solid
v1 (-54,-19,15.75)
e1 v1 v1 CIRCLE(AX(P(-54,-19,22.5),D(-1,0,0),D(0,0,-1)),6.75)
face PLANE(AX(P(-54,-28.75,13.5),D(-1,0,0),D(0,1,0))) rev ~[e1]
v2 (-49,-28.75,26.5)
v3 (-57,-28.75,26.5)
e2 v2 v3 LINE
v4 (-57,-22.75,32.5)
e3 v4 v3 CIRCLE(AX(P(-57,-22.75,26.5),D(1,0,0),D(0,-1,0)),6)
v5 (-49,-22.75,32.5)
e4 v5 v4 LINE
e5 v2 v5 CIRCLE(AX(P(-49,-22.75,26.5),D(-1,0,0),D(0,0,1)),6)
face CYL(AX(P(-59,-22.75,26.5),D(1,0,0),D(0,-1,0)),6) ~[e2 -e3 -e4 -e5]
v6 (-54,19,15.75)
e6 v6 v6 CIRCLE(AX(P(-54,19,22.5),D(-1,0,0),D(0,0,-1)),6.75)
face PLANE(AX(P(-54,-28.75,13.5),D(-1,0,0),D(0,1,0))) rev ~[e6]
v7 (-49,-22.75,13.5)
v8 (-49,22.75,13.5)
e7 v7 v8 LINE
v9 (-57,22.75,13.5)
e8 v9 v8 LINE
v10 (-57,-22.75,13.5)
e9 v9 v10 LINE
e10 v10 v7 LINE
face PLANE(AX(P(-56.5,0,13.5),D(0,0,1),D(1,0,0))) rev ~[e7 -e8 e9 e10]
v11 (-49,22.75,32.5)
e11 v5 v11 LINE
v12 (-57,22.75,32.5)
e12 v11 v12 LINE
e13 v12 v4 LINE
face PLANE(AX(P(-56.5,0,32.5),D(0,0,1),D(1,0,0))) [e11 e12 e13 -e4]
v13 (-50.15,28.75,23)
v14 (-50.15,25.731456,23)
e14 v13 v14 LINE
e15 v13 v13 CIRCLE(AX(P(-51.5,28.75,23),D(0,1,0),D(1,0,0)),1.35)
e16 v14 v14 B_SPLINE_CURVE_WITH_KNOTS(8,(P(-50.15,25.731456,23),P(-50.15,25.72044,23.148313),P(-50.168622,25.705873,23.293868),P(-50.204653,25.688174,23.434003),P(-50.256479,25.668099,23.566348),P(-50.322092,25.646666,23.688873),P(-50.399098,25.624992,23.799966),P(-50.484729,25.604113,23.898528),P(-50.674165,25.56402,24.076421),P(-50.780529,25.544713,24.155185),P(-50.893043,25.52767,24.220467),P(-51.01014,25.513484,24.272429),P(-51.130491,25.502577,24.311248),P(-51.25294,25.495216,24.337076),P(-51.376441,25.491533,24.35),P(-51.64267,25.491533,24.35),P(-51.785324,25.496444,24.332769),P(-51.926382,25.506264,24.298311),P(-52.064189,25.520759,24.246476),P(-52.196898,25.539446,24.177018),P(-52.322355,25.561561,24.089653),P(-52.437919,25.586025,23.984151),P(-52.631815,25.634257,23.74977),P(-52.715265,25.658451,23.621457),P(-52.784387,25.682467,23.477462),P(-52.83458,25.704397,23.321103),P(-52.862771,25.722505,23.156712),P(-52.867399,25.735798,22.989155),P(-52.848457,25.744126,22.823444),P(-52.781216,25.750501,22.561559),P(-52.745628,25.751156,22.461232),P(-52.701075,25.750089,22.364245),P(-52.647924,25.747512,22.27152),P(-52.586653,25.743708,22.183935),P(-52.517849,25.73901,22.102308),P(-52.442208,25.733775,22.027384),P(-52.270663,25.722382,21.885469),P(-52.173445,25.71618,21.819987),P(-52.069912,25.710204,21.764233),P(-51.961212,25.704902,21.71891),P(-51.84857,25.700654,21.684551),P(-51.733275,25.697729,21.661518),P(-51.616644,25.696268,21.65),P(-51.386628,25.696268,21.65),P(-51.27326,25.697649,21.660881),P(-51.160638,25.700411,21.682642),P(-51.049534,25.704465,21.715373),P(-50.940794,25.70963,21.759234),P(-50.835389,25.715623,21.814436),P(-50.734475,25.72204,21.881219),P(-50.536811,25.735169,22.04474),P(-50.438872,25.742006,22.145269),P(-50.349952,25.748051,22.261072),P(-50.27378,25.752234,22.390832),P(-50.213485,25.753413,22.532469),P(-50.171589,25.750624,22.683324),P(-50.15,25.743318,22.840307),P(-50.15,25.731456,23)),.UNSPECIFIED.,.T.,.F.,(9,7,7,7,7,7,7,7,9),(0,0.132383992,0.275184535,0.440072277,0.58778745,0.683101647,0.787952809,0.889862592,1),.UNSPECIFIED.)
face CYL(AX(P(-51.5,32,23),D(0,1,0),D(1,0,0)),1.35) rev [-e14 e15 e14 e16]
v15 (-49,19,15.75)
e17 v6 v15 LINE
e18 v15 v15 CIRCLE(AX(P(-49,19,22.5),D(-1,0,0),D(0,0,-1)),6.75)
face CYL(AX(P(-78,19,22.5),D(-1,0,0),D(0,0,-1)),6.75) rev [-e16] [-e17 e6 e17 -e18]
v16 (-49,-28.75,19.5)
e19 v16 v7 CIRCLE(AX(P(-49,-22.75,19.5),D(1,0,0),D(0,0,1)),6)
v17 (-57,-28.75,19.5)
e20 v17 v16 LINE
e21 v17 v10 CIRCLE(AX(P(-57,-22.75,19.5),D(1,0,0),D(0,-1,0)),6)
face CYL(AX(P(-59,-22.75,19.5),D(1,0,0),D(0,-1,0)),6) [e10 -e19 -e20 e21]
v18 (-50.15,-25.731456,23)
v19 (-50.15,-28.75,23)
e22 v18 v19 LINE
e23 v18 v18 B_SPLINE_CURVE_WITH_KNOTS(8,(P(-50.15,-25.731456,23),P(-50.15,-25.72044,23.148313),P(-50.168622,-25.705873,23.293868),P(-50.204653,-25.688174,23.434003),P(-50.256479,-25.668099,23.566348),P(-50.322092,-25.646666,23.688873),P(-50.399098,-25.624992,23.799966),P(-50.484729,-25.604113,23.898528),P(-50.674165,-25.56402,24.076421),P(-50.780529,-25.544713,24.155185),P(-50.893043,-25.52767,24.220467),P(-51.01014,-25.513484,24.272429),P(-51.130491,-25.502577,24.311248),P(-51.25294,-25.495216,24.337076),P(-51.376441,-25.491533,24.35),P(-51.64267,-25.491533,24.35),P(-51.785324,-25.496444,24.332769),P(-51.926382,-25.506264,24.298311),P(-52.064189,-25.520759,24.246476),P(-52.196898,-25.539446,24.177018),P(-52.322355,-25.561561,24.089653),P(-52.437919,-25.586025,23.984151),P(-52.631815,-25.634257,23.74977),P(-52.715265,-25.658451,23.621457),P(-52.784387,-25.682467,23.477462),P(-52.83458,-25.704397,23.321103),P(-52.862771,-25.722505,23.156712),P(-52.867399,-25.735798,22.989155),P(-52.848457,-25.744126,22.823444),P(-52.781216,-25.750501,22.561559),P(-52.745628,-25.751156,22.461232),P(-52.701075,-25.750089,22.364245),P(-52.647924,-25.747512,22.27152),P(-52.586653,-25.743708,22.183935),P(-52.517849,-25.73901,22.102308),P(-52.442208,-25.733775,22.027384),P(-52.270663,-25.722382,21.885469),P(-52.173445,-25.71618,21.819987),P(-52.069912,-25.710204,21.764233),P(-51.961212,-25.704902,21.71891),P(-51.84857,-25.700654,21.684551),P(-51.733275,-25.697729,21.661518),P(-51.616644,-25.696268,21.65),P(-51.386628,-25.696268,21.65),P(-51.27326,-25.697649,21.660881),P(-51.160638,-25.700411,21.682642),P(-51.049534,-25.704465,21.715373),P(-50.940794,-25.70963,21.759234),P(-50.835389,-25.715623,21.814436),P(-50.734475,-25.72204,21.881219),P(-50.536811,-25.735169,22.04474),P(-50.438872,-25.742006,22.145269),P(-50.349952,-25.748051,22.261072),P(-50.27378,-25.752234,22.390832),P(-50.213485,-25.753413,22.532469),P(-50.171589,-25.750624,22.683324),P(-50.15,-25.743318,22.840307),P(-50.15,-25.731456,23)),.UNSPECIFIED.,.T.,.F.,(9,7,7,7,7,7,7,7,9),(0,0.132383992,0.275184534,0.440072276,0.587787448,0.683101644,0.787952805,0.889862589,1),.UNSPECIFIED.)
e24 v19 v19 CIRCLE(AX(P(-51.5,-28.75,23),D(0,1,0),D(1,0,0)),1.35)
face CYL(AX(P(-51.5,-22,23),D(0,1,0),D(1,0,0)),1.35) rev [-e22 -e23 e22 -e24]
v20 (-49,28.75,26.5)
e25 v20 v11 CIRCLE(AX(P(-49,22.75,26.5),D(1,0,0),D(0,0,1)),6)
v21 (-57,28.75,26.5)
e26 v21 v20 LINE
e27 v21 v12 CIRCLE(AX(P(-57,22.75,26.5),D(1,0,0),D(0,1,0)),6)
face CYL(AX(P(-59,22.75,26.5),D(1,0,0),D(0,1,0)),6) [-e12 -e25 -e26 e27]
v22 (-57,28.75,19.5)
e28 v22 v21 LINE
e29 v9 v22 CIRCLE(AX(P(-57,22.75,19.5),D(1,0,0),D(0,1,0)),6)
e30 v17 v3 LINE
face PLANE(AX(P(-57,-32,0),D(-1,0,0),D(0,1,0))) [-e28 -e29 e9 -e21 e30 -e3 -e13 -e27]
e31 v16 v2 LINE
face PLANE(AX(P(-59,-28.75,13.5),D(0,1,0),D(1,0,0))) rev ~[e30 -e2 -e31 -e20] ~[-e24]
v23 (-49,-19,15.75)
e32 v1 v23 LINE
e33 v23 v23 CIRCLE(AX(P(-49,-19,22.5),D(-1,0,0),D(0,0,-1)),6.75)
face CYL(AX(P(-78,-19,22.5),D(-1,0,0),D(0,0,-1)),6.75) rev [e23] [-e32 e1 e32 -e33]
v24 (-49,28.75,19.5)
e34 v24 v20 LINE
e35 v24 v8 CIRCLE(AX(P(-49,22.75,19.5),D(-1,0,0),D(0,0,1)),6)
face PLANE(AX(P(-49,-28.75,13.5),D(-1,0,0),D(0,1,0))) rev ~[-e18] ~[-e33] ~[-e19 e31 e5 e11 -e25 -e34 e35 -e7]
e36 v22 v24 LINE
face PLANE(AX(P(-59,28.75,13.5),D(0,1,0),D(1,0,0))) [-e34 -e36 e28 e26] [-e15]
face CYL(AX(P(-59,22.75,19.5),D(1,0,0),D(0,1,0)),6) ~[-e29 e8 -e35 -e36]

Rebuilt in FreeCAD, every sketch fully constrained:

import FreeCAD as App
import Part
import Sketcher
from FreeCAD import Vector
Q = App.Units.Quantity


def edges_at(feature, points):
    """Names of the edges that pass closest to the given points."""
    edges = feature.Shape.Edges
    near = lambda p: min(range(len(edges)), key=lambda i: edges[i].distToShape(Part.Vertex(*p))[0])
    return sorted({f"Edge{near(p) + 1}" for p in points})

doc = App.newDocument("Part")
body = doc.addObject("PartDesign::Body", "Body")

# Sketch on XY plane
sketch1 = body.newObject("Sketcher::SketchObject", "Sketch")
sketch1.AttachmentSupport = (doc.getObject("XY_Plane"), [""])
sketch1.MapMode = "FlatFace"
sketch1.addGeometry([
    Part.LineSegment(Vector(-32, 32, 0), Vector(-32, -32, 0)),
    Part.LineSegment(Vector(-32, -32, 0), Vector(-22, -32, 0)),
    Part.LineSegment(Vector(-22, -32, 0), Vector(-22, 32, 0)),
    Part.LineSegment(Vector(-22, 32, 0), Vector(-32, 32, 0)),
], False)
sketch1.addConstraint([
    Sketcher.Constraint("Coincident", 0, 2, 1, 1),
    Sketcher.Constraint("Coincident", 1, 2, 2, 1),
    Sketcher.Constraint("Coincident", 2, 2, 3, 1),
    Sketcher.Constraint("Coincident", 3, 2, 0, 1),
    Sketcher.Constraint("Vertical", 0),
    Sketcher.Constraint("Horizontal", 1),
    Sketcher.Constraint("Vertical", 2),
    Sketcher.Constraint("Horizontal", 3),
    Sketcher.Constraint("DistanceX", 1, 1, 1, 2, Q("10 mm")),
    Sketcher.Constraint("DistanceY", 0, 2, 0, 1, Q("64 mm")),
    Sketcher.Constraint("DistanceX", 0, 2, -1, 1, Q("32 mm")),
    Sketcher.Constraint("DistanceY", 0, 2, -1, 1, Q("32 mm")),
])
pad1 = body.newObject("PartDesign::Pad", "Pad")
pad1.Profile = sketch1
pad1.Length = 42
body2 = doc.addObject("PartDesign::Body", "Body001")

# Sketch on XY plane
sketch2 = body2.newObject("Sketcher::SketchObject", "Sketch001")
sketch2.AttachmentSupport = (doc.getObject("XY_Plane001"), [""])
sketch2.MapMode = "FlatFace"
sketch2.AttachmentOffset = App.Placement(Vector(0, 0, 13.5), App.Rotation())
sketch2.addGeometry([
    Part.LineSegment(Vector(0, 28.75, 0), Vector(0, -28.75, 0)),
    Part.LineSegment(Vector(0, -28.75, 0), Vector(5, -28.75, 0)),
    Part.LineSegment(Vector(5, -28.75, 0), Vector(5, 28.75, 0)),
    Part.LineSegment(Vector(5, 28.75, 0), Vector(0, 28.75, 0)),
], False)
sketch2.addConstraint([
    Sketcher.Constraint("Coincident", 0, 2, 1, 1),
    Sketcher.Constraint("Coincident", 1, 2, 2, 1),
    Sketcher.Constraint("Coincident", 2, 2, 3, 1),
    Sketcher.Constraint("Coincident", 3, 2, 0, 1),
    Sketcher.Constraint("Vertical", 0),
    Sketcher.Constraint("Horizontal", 1),
    Sketcher.Constraint("Vertical", 2),
    Sketcher.Constraint("Horizontal", 3),
    Sketcher.Constraint("Symmetric", 0, 2, 3, 2, -1, 1),
    Sketcher.Constraint("DistanceX", 1, 1, 1, 2, Q("5 mm")),
    Sketcher.Constraint("DistanceY", 0, 2, 0, 1, Q("57.5 mm")),
])
pad2 = body2.newObject("PartDesign::Pad", "Pad001")
pad2.Profile = sketch2
pad2.Length = 19
doc.recompute()

fillet = body2.newObject("PartDesign::Fillet", "Fillet")
fillet.Base = (pad2, edges_at(pad2, [
    (2.5, -28.75, 13.5),
    (2.5, -28.75, 32.5),
    (2.5, 28.75, 13.5),
    (2.5, 28.75, 32.5),
]))
fillet.Radius = 6
body3 = doc.addObject("PartDesign::Body", "Body002")
doc.recompute()

body2.Placement = App.Placement(Vector(-24, 0, 0), App.Rotation(Vector(0, 0, 1), 0))
boolean = body3.newObject("PartDesign::Boolean", "Boolean")
boolean.Type = "Fuse"
boolean.addObjects([body2])
doc.recompute()

boolean2 = body3.newObject("PartDesign::Boolean", "Boolean001")
boolean2.Type = "Cut"
boolean2.addObjects([body])
body4 = doc.addObject("PartDesign::Body", "Body003")
doc.recompute()

body3.Placement = App.Placement(Vector(19, 0, 0), App.Rotation(Vector(0, 0, 1), 0))
boolean3 = body4.newObject("PartDesign::Boolean", "Boolean002")
boolean3.Type = "Fuse"
boolean3.addObjects([body3])
body5 = doc.addObject("PartDesign::Body", "Body004")

# Sketch on XZ plane
sketch3 = body5.newObject("Sketcher::SketchObject", "Sketch002")
sketch3.AttachmentSupport = (doc.getObject("XZ_Plane004"), [""])
sketch3.MapMode = "FlatFace"
sketch3.AttachmentOffset = App.Placement(Vector(0, 0, 22), App.Rotation())
sketch3.addGeometry(Part.Circle(Vector(2.5, 23, 0), Vector(0, 0, 1), 1.35), False)
sketch3.addConstraint([
    Sketcher.Constraint("Diameter", 0, Q("2.7 mm")),
    Sketcher.Constraint("DistanceY", -1, 1, 0, 3, Q("23 mm")),
    Sketcher.Constraint("DistanceX", -1, 1, 0, 3, Q("2.5 mm")),
])
pad3 = body5.newObject("PartDesign::Pad", "Pad002")
pad3.Profile = sketch3
pad3.Length = 10
body6 = doc.addObject("PartDesign::Body", "Body005")

# Sketch on XZ plane
sketch4 = body6.newObject("Sketcher::SketchObject", "Sketch003")
sketch4.AttachmentSupport = (doc.getObject("XZ_Plane005"), [""])
sketch4.MapMode = "FlatFace"
sketch4.AttachmentOffset = App.Placement(Vector(0, 0, -32), App.Rotation())
sketch4.addGeometry(Part.Circle(Vector(2.5, 23, 0), Vector(0, 0, 1), 1.35), False)
sketch4.addConstraint([
    Sketcher.Constraint("Diameter", 0, Q("2.7 mm")),
    Sketcher.Constraint("DistanceY", -1, 1, 0, 3, Q("23 mm")),
    Sketcher.Constraint("DistanceX", -1, 1, 0, 3, Q("2.5 mm")),
])
pad4 = body6.newObject("PartDesign::Pad", "Pad003")
pad4.Profile = sketch4
pad4.Length = 10
body7 = doc.addObject("PartDesign::Body", "Body006")

# Sketch on YZ plane
sketch5 = body7.newObject("Sketcher::SketchObject", "Sketch004")
sketch5.AttachmentSupport = (doc.getObject("YZ_Plane006"), [""])
sketch5.MapMode = "FlatFace"
sketch5.AttachmentOffset = App.Placement(Vector(0, 0, -24), App.Rotation())
sketch5.addGeometry(Part.Circle(Vector(19, 22.5, 0), Vector(0, 0, 1), 6.75), False)
sketch5.addConstraint([
    Sketcher.Constraint("Diameter", 0, Q("13.5 mm")),
    Sketcher.Constraint("DistanceX", -1, 1, 0, 3, Q("19 mm")),
    Sketcher.Constraint("DistanceY", -1, 1, 0, 3, Q("22.5 mm")),
])
pad5 = body7.newObject("PartDesign::Pad", "Pad004")
pad5.Profile = sketch5
pad5.Length = 50
body8 = doc.addObject("PartDesign::Body", "Body007")

# Sketch on YZ plane
sketch6 = body8.newObject("Sketcher::SketchObject", "Sketch005")
sketch6.AttachmentSupport = (doc.getObject("YZ_Plane007"), [""])
sketch6.MapMode = "FlatFace"
sketch6.AttachmentOffset = App.Placement(Vector(0, 0, -24), App.Rotation())
sketch6.addGeometry(Part.Circle(Vector(-19, 22.5, 0), Vector(0, 0, 1), 6.75), False)
sketch6.addConstraint([
    Sketcher.Constraint("Diameter", 0, Q("13.5 mm")),
    Sketcher.Constraint("DistanceX", 0, 3, -1, 1, Q("19 mm")),
    Sketcher.Constraint("DistanceY", -1, 1, 0, 3, Q("22.5 mm")),
])
pad6 = body8.newObject("PartDesign::Pad", "Pad005")
pad6.Profile = sketch6
pad6.Length = 50
body9 = doc.addObject("PartDesign::Body", "Body008")

# Sketch on XY plane
sketch7 = body9.newObject("Sketcher::SketchObject", "Sketch006")
sketch7.AttachmentSupport = (doc.getObject("XY_Plane008"), [""])
sketch7.MapMode = "FlatFace"
sketch7.AttachmentOffset = App.Placement(Vector(0, 0, 13.5), App.Rotation())
sketch7.addGeometry([
    Part.LineSegment(Vector(0, 28.75, 0), Vector(0, -28.75, 0)),
    Part.LineSegment(Vector(0, -28.75, 0), Vector(5, -28.75, 0)),
    Part.LineSegment(Vector(5, -28.75, 0), Vector(5, 28.75, 0)),
    Part.LineSegment(Vector(5, 28.75, 0), Vector(0, 28.75, 0)),
], False)
sketch7.addConstraint([
    Sketcher.Constraint("Coincident", 0, 2, 1, 1),
    Sketcher.Constraint("Coincident", 1, 2, 2, 1),
    Sketcher.Constraint("Coincident", 2, 2, 3, 1),
    Sketcher.Constraint("Coincident", 3, 2, 0, 1),
    Sketcher.Constraint("Vertical", 0),
    Sketcher.Constraint("Horizontal", 1),
    Sketcher.Constraint("Vertical", 2),
    Sketcher.Constraint("Horizontal", 3),
    Sketcher.Constraint("Symmetric", 0, 2, 3, 2, -1, 1),
    Sketcher.Constraint("DistanceX", 1, 1, 1, 2, Q("5 mm")),
    Sketcher.Constraint("DistanceY", 0, 2, 0, 1, Q("57.5 mm")),
])
pad7 = body9.newObject("PartDesign::Pad", "Pad006")
pad7.Profile = sketch7
pad7.Length = 19
doc.recompute()

fillet2 = body9.newObject("PartDesign::Fillet", "Fillet001")
fillet2.Base = (pad7, edges_at(pad7, [
    (2.5, -28.75, 13.5),
    (2.5, -28.75, 32.5),
    (2.5, 28.75, 13.5),
    (2.5, 28.75, 32.5),
]))
fillet2.Radius = 6
doc.recompute()

boolean4 = body9.newObject("PartDesign::Boolean", "Boolean003")
boolean4.Type = "Cut"
boolean4.addObjects([body8])
doc.recompute()

boolean5 = body9.newObject("PartDesign::Boolean", "Boolean004")
boolean5.Type = "Cut"
boolean5.addObjects([body7])
doc.recompute()

boolean6 = body9.newObject("PartDesign::Boolean", "Boolean005")
boolean6.Type = "Cut"
boolean6.addObjects([body6])
doc.recompute()

boolean7 = body9.newObject("PartDesign::Boolean", "Boolean006")
boolean7.Type = "Cut"
boolean7.addObjects([body5])
doc.recompute()

boolean8 = body9.newObject("PartDesign::Boolean", "Boolean007")
boolean8.Type = "Fuse"
boolean8.addObjects([body4])
body10 = doc.addObject("PartDesign::Body", "Body009")
doc.recompute()

body9.Placement = App.Placement(Vector(-54, 0, 0), App.Rotation(Vector(0, 0, 1), 0))
boolean9 = body10.newObject("PartDesign::Boolean", "Boolean008")
boolean9.Type = "Fuse"
boolean9.addObjects([body9])

doc.recompute()
